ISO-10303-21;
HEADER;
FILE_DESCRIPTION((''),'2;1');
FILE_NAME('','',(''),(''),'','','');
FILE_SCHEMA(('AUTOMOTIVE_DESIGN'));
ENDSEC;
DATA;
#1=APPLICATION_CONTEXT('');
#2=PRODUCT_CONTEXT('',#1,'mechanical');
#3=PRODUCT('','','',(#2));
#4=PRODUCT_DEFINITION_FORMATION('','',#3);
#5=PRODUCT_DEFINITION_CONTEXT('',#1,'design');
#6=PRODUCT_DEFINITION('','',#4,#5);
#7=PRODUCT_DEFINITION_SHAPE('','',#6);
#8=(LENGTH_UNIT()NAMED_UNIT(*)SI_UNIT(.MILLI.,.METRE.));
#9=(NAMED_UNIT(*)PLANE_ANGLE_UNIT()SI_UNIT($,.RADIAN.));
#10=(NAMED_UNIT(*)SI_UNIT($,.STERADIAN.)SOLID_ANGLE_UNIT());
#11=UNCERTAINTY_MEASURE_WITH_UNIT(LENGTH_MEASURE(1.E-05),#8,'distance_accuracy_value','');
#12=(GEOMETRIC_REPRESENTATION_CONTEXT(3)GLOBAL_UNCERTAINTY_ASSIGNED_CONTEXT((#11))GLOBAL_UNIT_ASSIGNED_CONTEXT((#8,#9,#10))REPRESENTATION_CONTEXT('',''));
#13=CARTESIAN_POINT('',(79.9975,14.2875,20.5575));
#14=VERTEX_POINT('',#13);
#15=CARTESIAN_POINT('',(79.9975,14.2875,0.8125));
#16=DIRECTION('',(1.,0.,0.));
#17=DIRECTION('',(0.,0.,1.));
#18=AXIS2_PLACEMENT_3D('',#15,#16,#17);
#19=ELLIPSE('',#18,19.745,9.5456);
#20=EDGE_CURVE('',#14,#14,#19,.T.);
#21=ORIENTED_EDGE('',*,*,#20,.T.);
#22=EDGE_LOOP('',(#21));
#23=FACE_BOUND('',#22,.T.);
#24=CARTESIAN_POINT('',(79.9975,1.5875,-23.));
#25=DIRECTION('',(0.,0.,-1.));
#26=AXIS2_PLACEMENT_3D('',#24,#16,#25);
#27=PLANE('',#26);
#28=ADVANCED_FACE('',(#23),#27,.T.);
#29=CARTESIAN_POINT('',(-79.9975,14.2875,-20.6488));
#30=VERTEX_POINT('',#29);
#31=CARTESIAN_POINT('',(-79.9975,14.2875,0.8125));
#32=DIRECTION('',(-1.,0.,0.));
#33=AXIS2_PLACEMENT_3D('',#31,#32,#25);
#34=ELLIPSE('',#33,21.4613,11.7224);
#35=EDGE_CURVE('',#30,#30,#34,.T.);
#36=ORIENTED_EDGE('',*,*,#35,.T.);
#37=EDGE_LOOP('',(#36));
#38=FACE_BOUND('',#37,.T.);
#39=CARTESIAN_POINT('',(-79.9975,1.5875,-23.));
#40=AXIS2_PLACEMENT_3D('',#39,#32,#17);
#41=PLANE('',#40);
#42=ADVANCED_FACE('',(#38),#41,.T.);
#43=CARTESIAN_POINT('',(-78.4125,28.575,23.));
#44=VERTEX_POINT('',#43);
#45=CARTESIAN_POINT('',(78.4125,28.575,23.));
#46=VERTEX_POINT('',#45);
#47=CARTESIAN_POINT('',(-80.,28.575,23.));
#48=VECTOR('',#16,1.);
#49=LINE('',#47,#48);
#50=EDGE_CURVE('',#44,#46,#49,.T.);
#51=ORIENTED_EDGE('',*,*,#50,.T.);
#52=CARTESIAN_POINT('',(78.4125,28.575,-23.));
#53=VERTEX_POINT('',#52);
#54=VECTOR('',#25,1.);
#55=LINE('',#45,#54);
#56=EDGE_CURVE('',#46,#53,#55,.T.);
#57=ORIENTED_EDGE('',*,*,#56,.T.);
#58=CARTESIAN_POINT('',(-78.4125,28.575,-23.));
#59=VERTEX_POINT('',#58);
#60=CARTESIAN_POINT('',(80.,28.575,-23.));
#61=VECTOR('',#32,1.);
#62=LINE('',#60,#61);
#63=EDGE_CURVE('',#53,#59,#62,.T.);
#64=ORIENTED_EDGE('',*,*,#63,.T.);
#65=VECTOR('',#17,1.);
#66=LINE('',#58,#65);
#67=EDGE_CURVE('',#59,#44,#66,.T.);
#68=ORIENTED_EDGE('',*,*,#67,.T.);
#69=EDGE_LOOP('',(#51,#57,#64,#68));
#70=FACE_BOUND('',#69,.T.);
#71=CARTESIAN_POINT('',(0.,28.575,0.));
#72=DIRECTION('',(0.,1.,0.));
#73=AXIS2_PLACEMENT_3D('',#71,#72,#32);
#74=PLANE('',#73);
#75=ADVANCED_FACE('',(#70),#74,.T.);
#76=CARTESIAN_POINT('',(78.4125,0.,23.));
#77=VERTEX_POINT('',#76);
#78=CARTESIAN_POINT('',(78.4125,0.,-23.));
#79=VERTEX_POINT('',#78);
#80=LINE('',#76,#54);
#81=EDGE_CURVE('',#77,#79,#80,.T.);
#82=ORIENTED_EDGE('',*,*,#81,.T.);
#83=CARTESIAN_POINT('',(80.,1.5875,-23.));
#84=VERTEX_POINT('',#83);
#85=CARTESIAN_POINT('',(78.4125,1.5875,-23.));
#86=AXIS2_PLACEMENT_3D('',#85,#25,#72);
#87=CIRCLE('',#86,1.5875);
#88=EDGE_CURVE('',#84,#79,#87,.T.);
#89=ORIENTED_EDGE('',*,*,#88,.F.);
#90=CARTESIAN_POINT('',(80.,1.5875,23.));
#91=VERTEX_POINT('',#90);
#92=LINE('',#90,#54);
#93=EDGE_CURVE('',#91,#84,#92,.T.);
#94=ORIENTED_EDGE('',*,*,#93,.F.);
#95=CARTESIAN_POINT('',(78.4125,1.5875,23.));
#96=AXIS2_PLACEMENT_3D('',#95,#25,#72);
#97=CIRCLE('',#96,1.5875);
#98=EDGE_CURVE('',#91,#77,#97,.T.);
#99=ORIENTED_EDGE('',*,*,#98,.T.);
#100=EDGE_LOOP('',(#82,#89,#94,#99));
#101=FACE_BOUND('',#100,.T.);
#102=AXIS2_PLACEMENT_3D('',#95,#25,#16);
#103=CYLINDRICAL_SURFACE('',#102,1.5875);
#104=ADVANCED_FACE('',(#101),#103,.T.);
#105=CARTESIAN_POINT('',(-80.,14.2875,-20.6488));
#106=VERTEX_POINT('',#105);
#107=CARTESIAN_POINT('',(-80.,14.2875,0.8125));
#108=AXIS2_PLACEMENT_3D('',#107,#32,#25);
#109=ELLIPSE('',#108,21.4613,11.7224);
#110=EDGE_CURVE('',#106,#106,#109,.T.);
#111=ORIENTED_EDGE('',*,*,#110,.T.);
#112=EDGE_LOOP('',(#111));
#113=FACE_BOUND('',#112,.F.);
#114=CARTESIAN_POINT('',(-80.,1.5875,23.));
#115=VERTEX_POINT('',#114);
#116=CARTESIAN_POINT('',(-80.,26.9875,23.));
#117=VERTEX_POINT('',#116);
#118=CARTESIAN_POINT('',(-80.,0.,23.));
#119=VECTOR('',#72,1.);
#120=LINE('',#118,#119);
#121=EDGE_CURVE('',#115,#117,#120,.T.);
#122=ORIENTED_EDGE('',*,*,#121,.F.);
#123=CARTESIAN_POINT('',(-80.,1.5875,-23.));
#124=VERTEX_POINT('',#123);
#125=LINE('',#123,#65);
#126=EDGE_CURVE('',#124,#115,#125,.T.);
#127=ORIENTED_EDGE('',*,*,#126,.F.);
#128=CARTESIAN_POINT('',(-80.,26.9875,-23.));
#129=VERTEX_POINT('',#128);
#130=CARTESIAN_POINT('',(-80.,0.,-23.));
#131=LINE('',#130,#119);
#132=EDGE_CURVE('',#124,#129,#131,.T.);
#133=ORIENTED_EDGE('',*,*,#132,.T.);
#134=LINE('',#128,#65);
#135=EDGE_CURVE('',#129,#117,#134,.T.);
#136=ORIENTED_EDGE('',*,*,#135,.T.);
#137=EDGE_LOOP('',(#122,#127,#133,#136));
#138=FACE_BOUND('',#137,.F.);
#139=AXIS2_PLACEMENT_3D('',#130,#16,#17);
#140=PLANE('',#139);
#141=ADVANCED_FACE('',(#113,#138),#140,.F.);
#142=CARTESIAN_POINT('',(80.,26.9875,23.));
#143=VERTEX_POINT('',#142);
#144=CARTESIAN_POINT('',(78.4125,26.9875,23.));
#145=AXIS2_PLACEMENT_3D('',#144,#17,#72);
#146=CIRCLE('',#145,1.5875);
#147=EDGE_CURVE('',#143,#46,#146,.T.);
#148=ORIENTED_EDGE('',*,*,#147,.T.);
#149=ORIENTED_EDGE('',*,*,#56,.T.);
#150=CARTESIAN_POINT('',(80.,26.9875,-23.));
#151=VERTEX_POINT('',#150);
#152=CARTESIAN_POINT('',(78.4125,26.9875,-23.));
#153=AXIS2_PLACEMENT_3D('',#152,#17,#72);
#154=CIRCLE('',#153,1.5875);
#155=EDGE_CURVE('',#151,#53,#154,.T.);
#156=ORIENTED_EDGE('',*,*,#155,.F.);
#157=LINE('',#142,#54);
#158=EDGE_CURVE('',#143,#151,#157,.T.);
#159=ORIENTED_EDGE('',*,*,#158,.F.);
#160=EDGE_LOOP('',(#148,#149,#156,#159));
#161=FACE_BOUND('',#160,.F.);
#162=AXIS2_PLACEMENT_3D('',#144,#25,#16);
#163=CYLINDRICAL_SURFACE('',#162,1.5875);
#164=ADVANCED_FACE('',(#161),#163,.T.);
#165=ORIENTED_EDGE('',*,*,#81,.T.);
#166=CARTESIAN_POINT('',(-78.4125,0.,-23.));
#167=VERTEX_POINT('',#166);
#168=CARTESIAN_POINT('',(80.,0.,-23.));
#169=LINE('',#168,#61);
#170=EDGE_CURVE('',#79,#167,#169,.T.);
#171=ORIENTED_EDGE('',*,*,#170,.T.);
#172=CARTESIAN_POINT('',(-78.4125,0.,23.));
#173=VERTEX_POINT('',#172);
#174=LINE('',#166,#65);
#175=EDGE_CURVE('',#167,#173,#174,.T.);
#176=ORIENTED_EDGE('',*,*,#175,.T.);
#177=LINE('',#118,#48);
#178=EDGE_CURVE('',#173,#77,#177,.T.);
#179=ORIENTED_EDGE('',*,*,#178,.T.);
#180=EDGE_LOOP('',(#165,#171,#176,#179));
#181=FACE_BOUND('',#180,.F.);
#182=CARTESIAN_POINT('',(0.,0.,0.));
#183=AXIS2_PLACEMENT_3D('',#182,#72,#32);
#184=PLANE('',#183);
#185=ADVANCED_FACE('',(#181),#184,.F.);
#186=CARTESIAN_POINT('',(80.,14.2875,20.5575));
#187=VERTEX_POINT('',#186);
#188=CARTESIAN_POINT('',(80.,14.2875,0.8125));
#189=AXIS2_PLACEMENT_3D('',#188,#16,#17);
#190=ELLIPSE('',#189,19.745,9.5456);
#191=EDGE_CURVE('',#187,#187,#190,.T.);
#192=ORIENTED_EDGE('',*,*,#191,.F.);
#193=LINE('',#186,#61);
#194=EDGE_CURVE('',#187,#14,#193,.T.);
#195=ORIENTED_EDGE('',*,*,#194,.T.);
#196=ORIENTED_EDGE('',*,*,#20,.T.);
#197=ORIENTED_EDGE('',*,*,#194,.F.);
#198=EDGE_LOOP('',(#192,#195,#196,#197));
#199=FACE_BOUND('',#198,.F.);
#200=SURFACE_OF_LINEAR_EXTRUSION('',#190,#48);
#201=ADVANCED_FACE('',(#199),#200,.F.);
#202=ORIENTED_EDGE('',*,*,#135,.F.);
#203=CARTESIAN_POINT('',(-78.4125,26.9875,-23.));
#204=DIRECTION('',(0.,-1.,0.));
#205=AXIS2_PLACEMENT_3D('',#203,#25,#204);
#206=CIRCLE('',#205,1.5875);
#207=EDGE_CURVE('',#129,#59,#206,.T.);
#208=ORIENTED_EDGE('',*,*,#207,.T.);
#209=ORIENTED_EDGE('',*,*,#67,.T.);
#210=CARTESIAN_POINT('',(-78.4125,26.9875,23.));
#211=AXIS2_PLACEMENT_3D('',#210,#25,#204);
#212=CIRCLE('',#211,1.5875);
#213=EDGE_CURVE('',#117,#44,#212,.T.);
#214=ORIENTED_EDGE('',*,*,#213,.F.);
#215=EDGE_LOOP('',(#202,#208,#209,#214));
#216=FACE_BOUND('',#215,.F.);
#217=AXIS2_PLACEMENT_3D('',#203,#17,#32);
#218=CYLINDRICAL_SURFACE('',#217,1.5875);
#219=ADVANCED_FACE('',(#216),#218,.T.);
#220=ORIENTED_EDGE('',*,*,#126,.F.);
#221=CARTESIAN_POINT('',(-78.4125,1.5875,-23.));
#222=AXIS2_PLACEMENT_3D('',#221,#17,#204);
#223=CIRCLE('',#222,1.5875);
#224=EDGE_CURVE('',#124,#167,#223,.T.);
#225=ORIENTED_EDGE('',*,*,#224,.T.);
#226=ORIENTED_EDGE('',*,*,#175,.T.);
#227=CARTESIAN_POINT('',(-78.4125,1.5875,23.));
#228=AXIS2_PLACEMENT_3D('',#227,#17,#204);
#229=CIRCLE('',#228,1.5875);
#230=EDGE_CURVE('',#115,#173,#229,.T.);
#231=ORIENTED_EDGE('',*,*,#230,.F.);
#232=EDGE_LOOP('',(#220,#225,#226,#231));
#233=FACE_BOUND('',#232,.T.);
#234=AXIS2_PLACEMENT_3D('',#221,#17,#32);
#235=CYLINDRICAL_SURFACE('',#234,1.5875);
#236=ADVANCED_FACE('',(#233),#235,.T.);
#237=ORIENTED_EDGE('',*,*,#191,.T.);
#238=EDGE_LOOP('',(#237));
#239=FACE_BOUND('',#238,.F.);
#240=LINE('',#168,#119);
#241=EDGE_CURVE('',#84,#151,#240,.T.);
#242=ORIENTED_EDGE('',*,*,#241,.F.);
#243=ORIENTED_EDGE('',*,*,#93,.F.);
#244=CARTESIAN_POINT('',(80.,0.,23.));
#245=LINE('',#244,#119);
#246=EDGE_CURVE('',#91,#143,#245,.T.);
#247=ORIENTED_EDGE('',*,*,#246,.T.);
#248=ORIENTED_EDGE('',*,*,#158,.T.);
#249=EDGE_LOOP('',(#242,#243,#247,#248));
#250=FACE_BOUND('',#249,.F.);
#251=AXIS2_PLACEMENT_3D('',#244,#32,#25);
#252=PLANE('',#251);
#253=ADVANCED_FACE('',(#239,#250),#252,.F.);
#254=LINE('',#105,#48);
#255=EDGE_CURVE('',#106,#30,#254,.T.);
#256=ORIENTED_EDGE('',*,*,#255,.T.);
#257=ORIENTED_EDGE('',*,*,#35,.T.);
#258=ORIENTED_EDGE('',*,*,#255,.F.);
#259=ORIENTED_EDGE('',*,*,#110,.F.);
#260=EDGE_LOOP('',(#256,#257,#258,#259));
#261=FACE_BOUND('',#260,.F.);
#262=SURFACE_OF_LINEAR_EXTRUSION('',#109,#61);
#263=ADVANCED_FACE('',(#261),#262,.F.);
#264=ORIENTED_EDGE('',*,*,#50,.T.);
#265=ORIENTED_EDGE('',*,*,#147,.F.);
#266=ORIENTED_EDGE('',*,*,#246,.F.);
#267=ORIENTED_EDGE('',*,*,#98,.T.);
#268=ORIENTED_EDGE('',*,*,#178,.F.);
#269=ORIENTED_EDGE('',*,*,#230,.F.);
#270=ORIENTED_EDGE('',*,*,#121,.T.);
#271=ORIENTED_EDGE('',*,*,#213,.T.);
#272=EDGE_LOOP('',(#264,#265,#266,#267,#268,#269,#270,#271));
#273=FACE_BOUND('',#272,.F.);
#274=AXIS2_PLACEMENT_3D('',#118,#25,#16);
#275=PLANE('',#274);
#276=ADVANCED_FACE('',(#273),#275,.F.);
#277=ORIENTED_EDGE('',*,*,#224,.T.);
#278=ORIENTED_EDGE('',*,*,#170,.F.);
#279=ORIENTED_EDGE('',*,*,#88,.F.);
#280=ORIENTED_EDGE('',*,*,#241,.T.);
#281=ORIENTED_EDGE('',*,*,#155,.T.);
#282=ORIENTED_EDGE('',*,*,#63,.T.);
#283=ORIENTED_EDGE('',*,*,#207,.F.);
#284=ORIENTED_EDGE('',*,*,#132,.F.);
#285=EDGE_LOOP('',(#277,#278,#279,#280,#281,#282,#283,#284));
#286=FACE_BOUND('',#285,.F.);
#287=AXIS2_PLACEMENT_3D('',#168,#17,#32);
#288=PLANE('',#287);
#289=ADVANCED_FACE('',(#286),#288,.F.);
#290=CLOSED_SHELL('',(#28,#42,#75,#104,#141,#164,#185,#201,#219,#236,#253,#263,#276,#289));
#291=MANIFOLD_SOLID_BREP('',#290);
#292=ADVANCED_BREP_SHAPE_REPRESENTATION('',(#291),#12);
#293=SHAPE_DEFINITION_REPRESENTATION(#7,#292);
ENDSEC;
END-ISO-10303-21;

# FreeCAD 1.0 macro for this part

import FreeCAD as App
import Part
import Sketcher


def edges_at(feature, points):
    """Names of the edges that pass closest to the given points."""
    edges = feature.Shape.Edges
    near = lambda p: min(range(len(edges)), key=lambda i: edges[i].distToShape(Part.Vertex(*p))[0])
    return sorted({f"Edge{near(p) + 1}" for p in points})


def add_polygon(sketch, points):
    """Adds a closed chain of lines whose ends are joined by coincident constraints."""
    first, n = sketch.GeometryCount, len(points)
    for a, b in zip(points, points[1:] + points[:1]):
        sketch.addGeometry(Part.LineSegment(App.Vector(*a, 0), App.Vector(*b, 0)), False)
    for i in range(n):
        sketch.addConstraint(Sketcher.Constraint("Coincident", first + i, 2, first + (i + 1) % n, 1))

doc = App.newDocument("Part")
body = doc.addObject("PartDesign::Body", "Body")

sketch1 = body.newObject("Sketcher::SketchObject", "Sketch")
sketch1.AttachmentSupport = (doc.getObject("XZ_Plane"), [""])
sketch1.MapMode = "FlatFace"
add_polygon(sketch1, [(-80, -23), (-80, 23), (80, 23), (80, -23)])
sketch1.addConstraint([
    Sketcher.Constraint("Vertical", 0),
    Sketcher.Constraint("Horizontal", 1),
    Sketcher.Constraint("Vertical", 2),
    Sketcher.Constraint("Horizontal", 3),
    Sketcher.Constraint("Symmetric", 0, 2, 2, 2, -1, 1),
    Sketcher.Constraint("DistanceX", 1, 1, 1, 2, 160.0),
    Sketcher.Constraint("DistanceY", 0, 1, 0, 2, 46.0),
])
pad1 = body.newObject("PartDesign::Pad", "Pad")
pad1.Profile = sketch1
pad1.Length = 28.575
pad1.Reversed = True
doc.recompute()

fillet = body.newObject("PartDesign::Fillet", "Fillet")
fillet.Base = (pad1, edges_at(pad1, [
    (80, 28.575, 0),
    (80, 0, 0),
    (-80, 0, 0),
    (-80, 28.575, 0),
]))
fillet.Radius = 1.5875

sketch2 = body.newObject("Sketcher::SketchObject", "Sketch001")
sketch2.AttachmentSupport = (doc.getObject("YZ_Plane"), [""])
sketch2.MapMode = "FlatFace"
sketch2.AttachmentOffset = App.Placement(App.Vector(0, 0, 80), App.Rotation())
sketch2.addGeometry(Part.Ellipse(App.Vector(14.2875, 20.5575, 0), App.Vector(4.7419, 0.8125, 0), App.Vector(14.2875, 0.8125, 0)), False)
sketch2.addConstraint(Sketcher.Constraint("Block", 0))
pocket1 = body.newObject("PartDesign::Pocket", "Pocket")
pocket1.Profile = sketch2
pocket1.Length = 0.0025

sketch3 = body.newObject("Sketcher::SketchObject", "Sketch002")
sketch3.AttachmentSupport = (doc.getObject("YZ_Plane"), [""])
sketch3.MapMode = "FlatFace"
sketch3.AttachmentOffset = App.Placement(App.Vector(0, 0, -80), App.Rotation())
sketch3.addGeometry(Part.Ellipse(App.Vector(14.2875, -20.6488, 0), App.Vector(26.0099, 0.8125, 0), App.Vector(14.2875, 0.8125, 0)), False)
sketch3.addConstraint(Sketcher.Constraint("Block", 0))
pocket2 = body.newObject("PartDesign::Pocket", "Pocket001")
pocket2.Profile = sketch3
pocket2.Length = 0.0025
pocket2.Reversed = True

doc.recompute()
